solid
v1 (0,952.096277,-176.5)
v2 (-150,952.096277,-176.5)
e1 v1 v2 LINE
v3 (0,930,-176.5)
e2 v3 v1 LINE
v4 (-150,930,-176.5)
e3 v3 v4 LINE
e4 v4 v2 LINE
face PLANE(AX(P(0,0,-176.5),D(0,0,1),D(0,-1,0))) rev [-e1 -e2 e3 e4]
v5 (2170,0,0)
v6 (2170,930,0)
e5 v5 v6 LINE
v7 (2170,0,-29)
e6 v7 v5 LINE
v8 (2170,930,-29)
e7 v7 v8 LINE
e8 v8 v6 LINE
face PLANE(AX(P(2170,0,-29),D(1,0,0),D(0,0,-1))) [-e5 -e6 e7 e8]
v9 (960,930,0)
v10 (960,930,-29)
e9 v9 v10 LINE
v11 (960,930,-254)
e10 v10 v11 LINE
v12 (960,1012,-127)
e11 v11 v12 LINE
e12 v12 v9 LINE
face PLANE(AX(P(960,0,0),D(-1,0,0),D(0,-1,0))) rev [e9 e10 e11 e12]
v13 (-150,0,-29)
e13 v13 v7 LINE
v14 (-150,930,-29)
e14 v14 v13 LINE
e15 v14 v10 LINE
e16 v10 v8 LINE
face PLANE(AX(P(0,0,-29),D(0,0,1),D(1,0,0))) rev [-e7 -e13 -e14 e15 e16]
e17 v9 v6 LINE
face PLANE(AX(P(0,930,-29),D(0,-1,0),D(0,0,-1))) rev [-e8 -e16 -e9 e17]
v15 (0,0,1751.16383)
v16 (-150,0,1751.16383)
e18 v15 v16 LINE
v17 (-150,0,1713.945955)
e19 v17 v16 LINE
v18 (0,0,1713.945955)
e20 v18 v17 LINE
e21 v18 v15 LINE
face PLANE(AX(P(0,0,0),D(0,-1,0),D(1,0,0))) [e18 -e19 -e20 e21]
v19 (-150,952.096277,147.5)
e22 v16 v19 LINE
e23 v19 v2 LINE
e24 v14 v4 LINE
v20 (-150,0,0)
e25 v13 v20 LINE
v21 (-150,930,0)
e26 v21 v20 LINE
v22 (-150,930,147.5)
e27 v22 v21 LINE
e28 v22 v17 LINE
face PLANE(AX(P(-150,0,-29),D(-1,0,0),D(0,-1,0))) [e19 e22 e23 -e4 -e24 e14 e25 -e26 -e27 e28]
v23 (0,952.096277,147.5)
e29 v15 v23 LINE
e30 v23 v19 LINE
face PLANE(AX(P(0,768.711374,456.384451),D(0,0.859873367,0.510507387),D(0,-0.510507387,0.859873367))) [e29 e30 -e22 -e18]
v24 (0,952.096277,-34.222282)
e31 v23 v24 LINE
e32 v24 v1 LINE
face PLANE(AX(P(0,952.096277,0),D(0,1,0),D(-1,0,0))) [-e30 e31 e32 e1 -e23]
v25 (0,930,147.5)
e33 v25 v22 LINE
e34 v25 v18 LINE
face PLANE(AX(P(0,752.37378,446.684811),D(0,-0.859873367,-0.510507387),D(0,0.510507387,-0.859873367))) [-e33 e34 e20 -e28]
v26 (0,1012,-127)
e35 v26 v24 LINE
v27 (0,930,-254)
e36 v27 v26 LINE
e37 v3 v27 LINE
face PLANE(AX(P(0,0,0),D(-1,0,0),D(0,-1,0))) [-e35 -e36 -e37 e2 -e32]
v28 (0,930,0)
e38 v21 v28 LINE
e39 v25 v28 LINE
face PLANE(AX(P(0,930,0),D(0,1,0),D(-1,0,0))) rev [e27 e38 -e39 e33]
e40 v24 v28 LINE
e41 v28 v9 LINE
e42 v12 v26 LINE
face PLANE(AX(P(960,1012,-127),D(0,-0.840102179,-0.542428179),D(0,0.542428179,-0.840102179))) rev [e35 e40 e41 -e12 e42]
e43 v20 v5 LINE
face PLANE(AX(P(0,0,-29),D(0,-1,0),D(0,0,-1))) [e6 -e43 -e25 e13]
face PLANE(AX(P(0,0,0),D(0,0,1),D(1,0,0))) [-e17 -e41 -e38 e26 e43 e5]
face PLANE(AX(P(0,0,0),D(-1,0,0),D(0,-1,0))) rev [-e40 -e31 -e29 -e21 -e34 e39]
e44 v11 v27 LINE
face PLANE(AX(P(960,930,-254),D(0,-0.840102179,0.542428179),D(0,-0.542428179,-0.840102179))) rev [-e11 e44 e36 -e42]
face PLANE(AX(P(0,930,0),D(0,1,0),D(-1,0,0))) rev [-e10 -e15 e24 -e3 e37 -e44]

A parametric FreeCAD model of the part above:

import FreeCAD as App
import Part
import Sketcher

V = App.Vector

doc = App.newDocument("Part")
params = doc.addObject("Spreadsheet::Sheet", "Params")
for row, (alias, value) in enumerate([
    ("sketch1_width", "2320 mm"),
    ("sketch1_height", "930 mm"),
    ("pad1_length", "29 mm"),
    ("sketch2_height", "324 mm"),
    ("sketch2_length", "1865 mm"),
    ("pad2_length", "150 mm"),
    ("sketch3_height", "254 mm"),
    ("pad3_length", "960 mm"),
], start=1):
    params.set(f"A{row}", alias)
    params.set(f"B{row}", "=" + value)
    params.setAlias(f"B{row}", alias)

body = doc.addObject("PartDesign::Body", "Body")

sketch1 = body.newObject("Sketcher::SketchObject", "Sketch")
sketch1.AttachmentSupport = (doc.getObject("XY_Plane"), [""])
sketch1.MapMode = "FlatFace"
sketch1.addGeometry(Part.LineSegment(V(2170, 0, 0), V(2170, 930, 0)), False)
sketch1.addGeometry(Part.LineSegment(V(2170, 930, 0), V(-150, 930, 0)), False)
sketch1.addGeometry(Part.LineSegment(V(-150, 930, 0), V(-150, 0, 0)), False)
sketch1.addGeometry(Part.LineSegment(V(-150, 0, 0), V(2170, 0, 0)), False)
sketch1.addConstraint(Sketcher.Constraint("Coincident", 0, 2, 1, 1))
sketch1.addConstraint(Sketcher.Constraint("Coincident", 1, 2, 2, 1))
sketch1.addConstraint(Sketcher.Constraint("Coincident", 2, 2, 3, 1))
sketch1.addConstraint(Sketcher.Constraint("Coincident", 3, 2, 0, 1))
sketch1.addConstraint(Sketcher.Constraint("Vertical", 0))
sketch1.addConstraint(Sketcher.Constraint("Horizontal", 1))
sketch1.addConstraint(Sketcher.Constraint("Vertical", 2))
sketch1.addConstraint(Sketcher.Constraint("Horizontal", 3))
sketch1.addConstraint(Sketcher.Constraint("PointOnObject", 2, 2, -1))
sketch1.addConstraint(Sketcher.Constraint("DistanceX", 1, 2, 1, 1, 2320.0))
sketch1.addConstraint(Sketcher.Constraint("DistanceY", 0, 1, 0, 2, 930.0))
sketch1.addConstraint(Sketcher.Constraint("DistanceX", -1, 1, 0, 2, 2170.0))
sketch1.setExpression("Constraints[9]", "Params.sketch1_width")
sketch1.setExpression("Constraints[10]", "Params.sketch1_height")
pad1 = body.newObject("PartDesign::Pad", "Pad")
pad1.Profile = sketch1
pad1.setExpression("Length", "Params.pad1_length")
pad1.Reversed = True

sketch2 = body.newObject("Sketcher::SketchObject", "Sketch001")
sketch2.AttachmentSupport = (doc.getObject("YZ_Plane"), [""])
sketch2.MapMode = "FlatFace"
sketch2.AttachmentOffset = App.Placement(V(0, 0, -150), App.Rotation())
sketch2.addGeometry(Part.LineSegment(V(952, 148, 0), V(952, -176, 0)), False)
sketch2.addGeometry(Part.LineSegment(V(952, -176, 0), V(930, -176, 0)), False)
sketch2.addGeometry(Part.LineSegment(V(930, -176, 0), V(930, 148, 0)), False)
sketch2.addGeometry(Part.LineSegment(V(930, 148, 0), V(0, 1714, 0)), False)
sketch2.addGeometry(Part.LineSegment(V(0, 1714, 0), V(0, 1751, 0)), False)
sketch2.addGeometry(Part.LineSegment(V(0, 1751, 0), V(952, 148, 0)), False)
sketch2.addConstraint(Sketcher.Constraint("Coincident", 0, 2, 1, 1))
sketch2.addConstraint(Sketcher.Constraint("Coincident", 1, 2, 2, 1))
sketch2.addConstraint(Sketcher.Constraint("Coincident", 2, 2, 3, 1))
sketch2.addConstraint(Sketcher.Constraint("Coincident", 3, 2, 4, 1))
sketch2.addConstraint(Sketcher.Constraint("Coincident", 4, 2, 5, 1))
sketch2.addConstraint(Sketcher.Constraint("Coincident", 5, 2, 0, 1))
sketch2.addConstraint(Sketcher.Constraint("Vertical", 0))
sketch2.addConstraint(Sketcher.Constraint("Horizontal", 1))
sketch2.addConstraint(Sketcher.Constraint("Vertical", 2))
sketch2.addConstraint(Sketcher.Constraint("Vertical", 4))
sketch2.addConstraint(Sketcher.Constraint("PointOnObject", 3, 2, -2))
sketch2.addConstraint(Sketcher.Constraint("Parallel", 3, 5))
sketch2.addConstraint(Sketcher.Constraint("Horizontal", 2, 2, 5, 2))
sketch2.addConstraint(Sketcher.Constraint("DistanceY", 0, 2, 0, 1, 324.0))
sketch2.addConstraint(Sketcher.Constraint("Distance", 5, 1865.0))
sketch2.addConstraint(Sketcher.Constraint("DistanceX", -1, 1, 1, 2, 930.0))
sketch2.addConstraint(Sketcher.Constraint("DistanceY", 0, 2, -1, 1, 176.5))
sketch2.addConstraint(Sketcher.Constraint("Distance", 3, 1821.717028))
sketch2.setExpression("Constraints[13]", "Params.sketch2_height")
sketch2.setExpression("Constraints[14]", "Params.sketch2_length")
pad2 = body.newObject("PartDesign::Pad", "Pad001")
pad2.Profile = sketch2
pad2.setExpression("Length", "Params.pad2_length")

sketch3 = body.newObject("Sketcher::SketchObject", "Sketch002")
sketch3.AttachmentSupport = (doc.getObject("YZ_Plane"), [""])
sketch3.MapMode = "FlatFace"
sketch3.addGeometry(Part.LineSegment(V(930, 0, 0), V(930, -254, 0)), False)
sketch3.addGeometry(Part.LineSegment(V(930, -254, 0), V(1012, -127, 0)), False)
sketch3.addGeometry(Part.LineSegment(V(1012, -127, 0), V(930, 0, 0)), False)
sketch3.addConstraint(Sketcher.Constraint("Coincident", 0, 2, 1, 1))
sketch3.addConstraint(Sketcher.Constraint("Coincident", 1, 2, 2, 1))
sketch3.addConstraint(Sketcher.Constraint("Coincident", 2, 2, 0, 1))
sketch3.addConstraint(Sketcher.Constraint("Vertical", 0))
sketch3.addConstraint(Sketcher.Constraint("PointOnObject", 2, 2, -1))
sketch3.addConstraint(Sketcher.Constraint("Equal", 1, 2))
sketch3.addConstraint(Sketcher.Constraint("DistanceY", 0, 2, 0, 1, 254.0))
sketch3.addConstraint(Sketcher.Constraint("DistanceX", -1, 1, 0, 2, 930.0))
sketch3.addConstraint(Sketcher.Constraint("DistanceX", -1, 1, 1, 2, 1012.0))
sketch3.setExpression("Constraints[6]", "Params.sketch3_height")
pad3 = body.newObject("PartDesign::Pad", "Pad002")
pad3.Profile = sketch3
pad3.setExpression("Length", "Params.pad3_length")

doc.recompute()
